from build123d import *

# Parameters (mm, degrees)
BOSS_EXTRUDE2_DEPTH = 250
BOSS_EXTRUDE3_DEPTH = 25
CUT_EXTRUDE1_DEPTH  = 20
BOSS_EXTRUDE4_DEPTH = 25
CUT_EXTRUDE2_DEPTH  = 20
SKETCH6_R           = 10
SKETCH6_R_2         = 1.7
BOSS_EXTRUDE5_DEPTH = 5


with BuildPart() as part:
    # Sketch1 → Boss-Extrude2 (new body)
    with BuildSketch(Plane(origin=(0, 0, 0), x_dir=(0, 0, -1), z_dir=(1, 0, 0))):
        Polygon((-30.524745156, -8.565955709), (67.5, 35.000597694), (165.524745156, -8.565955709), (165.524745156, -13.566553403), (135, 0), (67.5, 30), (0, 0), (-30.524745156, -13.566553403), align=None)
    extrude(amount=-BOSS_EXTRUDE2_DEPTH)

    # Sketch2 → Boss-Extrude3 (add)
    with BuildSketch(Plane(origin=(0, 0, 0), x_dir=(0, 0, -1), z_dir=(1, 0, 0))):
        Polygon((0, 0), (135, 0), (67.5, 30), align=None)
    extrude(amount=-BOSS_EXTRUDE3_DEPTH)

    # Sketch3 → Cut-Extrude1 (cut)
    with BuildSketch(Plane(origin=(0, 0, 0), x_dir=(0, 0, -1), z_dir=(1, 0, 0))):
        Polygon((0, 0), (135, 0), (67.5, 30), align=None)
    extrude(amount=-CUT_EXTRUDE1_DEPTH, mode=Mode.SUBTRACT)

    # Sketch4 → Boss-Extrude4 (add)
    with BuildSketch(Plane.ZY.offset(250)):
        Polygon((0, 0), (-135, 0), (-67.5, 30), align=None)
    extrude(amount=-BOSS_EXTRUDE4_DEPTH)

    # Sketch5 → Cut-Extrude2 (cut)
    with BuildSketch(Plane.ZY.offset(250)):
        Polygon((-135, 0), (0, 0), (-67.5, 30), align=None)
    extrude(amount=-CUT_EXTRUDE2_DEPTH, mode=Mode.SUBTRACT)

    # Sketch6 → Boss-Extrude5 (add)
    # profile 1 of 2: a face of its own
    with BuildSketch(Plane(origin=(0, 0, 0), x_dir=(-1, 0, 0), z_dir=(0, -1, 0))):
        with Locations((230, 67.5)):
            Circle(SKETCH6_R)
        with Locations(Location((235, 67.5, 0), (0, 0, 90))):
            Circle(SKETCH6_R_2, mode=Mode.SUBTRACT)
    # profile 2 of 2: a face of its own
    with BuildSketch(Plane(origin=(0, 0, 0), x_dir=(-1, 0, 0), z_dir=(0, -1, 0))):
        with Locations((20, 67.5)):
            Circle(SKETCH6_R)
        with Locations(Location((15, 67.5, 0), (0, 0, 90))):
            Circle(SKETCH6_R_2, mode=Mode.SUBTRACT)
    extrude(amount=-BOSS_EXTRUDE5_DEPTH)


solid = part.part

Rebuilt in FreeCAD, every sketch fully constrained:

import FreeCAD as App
import Part
import Sketcher

doc = App.newDocument("Part")
body = doc.addObject("PartDesign::Body", "Body")

sketch1 = body.newObject("Sketcher::SketchObject", "Sketch")
sketch1.AttachmentSupport = (doc.getObject("YZ_Plane"), [""])
sketch1.MapMode = "FlatFace"
sketch1.addGeometry([
    Part.LineSegment(App.Vector(35, -68, 0), App.Vector(-9, 31, 0)),
    Part.LineSegment(App.Vector(-9, 31, 0), App.Vector(-14, 31, 0)),
    Part.LineSegment(App.Vector(-14, 31, 0), App.Vector(0, 0, 0)),
    Part.LineSegment(App.Vector(0, 0, 0), App.Vector(30, -68, 0)),
    Part.LineSegment(App.Vector(30, -68, 0), App.Vector(0, -135, 0)),
    Part.LineSegment(App.Vector(0, -135, 0), App.Vector(-14, -166, 0)),
    Part.LineSegment(App.Vector(-14, -166, 0), App.Vector(-9, -166, 0)),
    Part.LineSegment(App.Vector(-9, -166, 0), App.Vector(35, -68, 0)),
], False)
sketch1.addConstraint([
    Sketcher.Constraint("Coincident", 0, 2, 1, 1),
    Sketcher.Constraint("Coincident", 1, 2, 2, 1),
    Sketcher.Constraint("Coincident", 2, 2, 3, 1),
    Sketcher.Constraint("Coincident", 3, 2, 4, 1),
    Sketcher.Constraint("Coincident", 4, 2, 5, 1),
    Sketcher.Constraint("Coincident", 5, 2, 6, 1),
    Sketcher.Constraint("Coincident", 6, 2, 7, 1),
    Sketcher.Constraint("Coincident", 7, 2, 0, 1),
    Sketcher.Constraint("Horizontal", 1),
    Sketcher.Constraint("Horizontal", 6),
    Sketcher.Constraint("Coincident", 2, 2, -1, 1),
    Sketcher.Constraint("PointOnObject", 4, 2, -2),
    Sketcher.Constraint("Parallel", 0, 2),
    Sketcher.Constraint("Parallel", 2, 3),
    Sketcher.Constraint("Parallel", 4, 5),
    Sketcher.Constraint("Parallel", 5, 7),
    Sketcher.Constraint("Horizontal", 3, 2, 7, 2),
    Sketcher.Constraint("Vertical", 1, 2, 5, 2),
    Sketcher.Constraint("Equal", 3, 4),
    Sketcher.Constraint("DistanceX", -1, 1, 3, 2, 30.0),
    Sketcher.Constraint("DistanceY", 4, 2, -1, 1, 135.0),
    Sketcher.Constraint("DistanceX", 1, 2, 1, 1, 5.000598),
    Sketcher.Constraint("DistanceY", 5, 2, 1, 2, 196.04949),
])
pad1 = body.newObject("PartDesign::Pad", "Pad")
pad1.Profile = sketch1
pad1.Length = 250
pad1.Reversed = True

sketch2 = body.newObject("Sketcher::SketchObject", "Sketch001")
sketch2.AttachmentSupport = (doc.getObject("YZ_Plane"), [""])
sketch2.MapMode = "FlatFace"
sketch2.addGeometry([
    Part.LineSegment(App.Vector(0, 0, 0), App.Vector(0, -135, 0)),
    Part.LineSegment(App.Vector(0, -135, 0), App.Vector(30, -68, 0)),
    Part.LineSegment(App.Vector(30, -68, 0), App.Vector(0, 0, 0)),
], False)
sketch2.addConstraint([
    Sketcher.Constraint("Coincident", 0, 2, 1, 1),
    Sketcher.Constraint("Coincident", 1, 2, 2, 1),
    Sketcher.Constraint("Coincident", 2, 2, 0, 1),
    Sketcher.Constraint("Vertical", 0),
    Sketcher.Constraint("Coincident", 2, 2, -1, 1),
    Sketcher.Constraint("Equal", 1, 2),
    Sketcher.Constraint("DistanceY", 0, 2, 0, 1, 135.0),
    Sketcher.Constraint("DistanceX", -1, 1, 1, 2, 30.0),
])
pad2 = body.newObject("PartDesign::Pad", "Pad001")
pad2.Profile = sketch2
pad2.Length = 25
pad2.Reversed = True

sketch3 = body.newObject("Sketcher::SketchObject", "Sketch002")
sketch3.AttachmentSupport = (doc.getObject("YZ_Plane"), [""])
sketch3.MapMode = "FlatFace"
sketch3.addGeometry([
    Part.LineSegment(App.Vector(0, 0, 0), App.Vector(0, -135, 0)),
    Part.LineSegment(App.Vector(0, -135, 0), App.Vector(30, -68, 0)),
    Part.LineSegment(App.Vector(30, -68, 0), App.Vector(0, 0, 0)),
], False)
sketch3.addConstraint([
    Sketcher.Constraint("Coincident", 0, 2, 1, 1),
    Sketcher.Constraint("Coincident", 1, 2, 2, 1),
    Sketcher.Constraint("Coincident", 2, 2, 0, 1),
    Sketcher.Constraint("Vertical", 0),
    Sketcher.Constraint("Coincident", 2, 2, -1, 1),
    Sketcher.Constraint("Equal", 1, 2),
    Sketcher.Constraint("DistanceY", 0, 2, 0, 1, 135.0),
    Sketcher.Constraint("DistanceX", -1, 1, 1, 2, 30.0),
])
pocket1 = body.newObject("PartDesign::Pocket", "Pocket")
pocket1.Profile = sketch3
pocket1.Length = 20

sketch4 = body.newObject("Sketcher::SketchObject", "Sketch003")
sketch4.AttachmentSupport = (doc.getObject("YZ_Plane"), [""])
sketch4.MapMode = "FlatFace"
sketch4.AttachmentOffset = App.Placement(App.Vector(0, 0, -250), App.Rotation())
sketch4.addGeometry([
    Part.LineSegment(App.Vector(0, -135, 0), App.Vector(0, 0, 0)),
    Part.LineSegment(App.Vector(0, 0, 0), App.Vector(30, -68, 0)),
    Part.LineSegment(App.Vector(30, -68, 0), App.Vector(0, -135, 0)),
], False)
sketch4.addConstraint([
    Sketcher.Constraint("Coincident", 0, 2, 1, 1),
    Sketcher.Constraint("Coincident", 1, 2, 2, 1),
    Sketcher.Constraint("Coincident", 2, 2, 0, 1),
    Sketcher.Constraint("Vertical", 0),
    Sketcher.Constraint("Coincident", 0, 2, -1, 1),
    Sketcher.Constraint("Equal", 1, 2),
    Sketcher.Constraint("DistanceY", 0, 1, 0, 2, 135.0),
    Sketcher.Constraint("DistanceX", -1, 1, 1, 2, 30.0),
])
pad3 = body.newObject("PartDesign::Pad", "Pad002")
pad3.Profile = sketch4
pad3.Length = 25

sketch5 = body.newObject("Sketcher::SketchObject", "Sketch004")
sketch5.AttachmentSupport = (doc.getObject("YZ_Plane"), [""])
sketch5.MapMode = "FlatFace"
sketch5.AttachmentOffset = App.Placement(App.Vector(0, 0, -250), App.Rotation())
sketch5.addGeometry([
    Part.LineSegment(App.Vector(0, -135, 0), App.Vector(0, 0, 0)),
    Part.LineSegment(App.Vector(0, 0, 0), App.Vector(30, -68, 0)),
    Part.LineSegment(App.Vector(30, -68, 0), App.Vector(0, -135, 0)),
], False)
sketch5.addConstraint([
    Sketcher.Constraint("Coincident", 0, 2, 1, 1),
    Sketcher.Constraint("Coincident", 1, 2, 2, 1),
    Sketcher.Constraint("Coincident", 2, 2, 0, 1),
    Sketcher.Constraint("Vertical", 0),
    Sketcher.Constraint("Coincident", 0, 2, -1, 1),
    Sketcher.Constraint("Equal", 1, 2),
    Sketcher.Constraint("DistanceY", 0, 1, 0, 2, 135.0),
    Sketcher.Constraint("DistanceX", -1, 1, 1, 2, 30.0),
])
pocket2 = body.newObject("PartDesign::Pocket", "Pocket001")
pocket2.Profile = sketch5
pocket2.Length = 20
pocket2.Reversed = True

sketch6 = body.newObject("Sketcher::SketchObject", "Sketch005")
sketch6.AttachmentSupport = (doc.getObject("XZ_Plane"), [""])
sketch6.MapMode = "FlatFace"
sketch6.addGeometry([
    Part.Circle(App.Vector(-230, -67.5, 0), App.Vector(0, 0, 1), 10),
    Part.Circle(App.Vector(-235, -67.5, 0), App.Vector(0, 0, 1), 1.7),
    Part.Circle(App.Vector(-20, -67.5, 0), App.Vector(0, 0, 1), 10),
    Part.Circle(App.Vector(-15, -67.5, 0), App.Vector(0, 0, 1), 1.7),
], False)
sketch6.addConstraint([
    Sketcher.Constraint("Equal", 0, 2),
    Sketcher.Constraint("Equal", 1, 3),
    Sketcher.Constraint("Horizontal", 0, 3, 1, 3),
    Sketcher.Constraint("Horizontal", 1, 3, 2, 3),
    Sketcher.Constraint("Horizontal", 2, 3, 3, 3),
    Sketcher.Constraint("Diameter", 0, 20.0),
    Sketcher.Constraint("Diameter", 1, 3.4),
    Sketcher.Constraint("DistanceX", 0, 3, -1, 1, 230.0),
    Sketcher.Constraint("DistanceX", 1, 3, -1, 1, 235.0),
    Sketcher.Constraint("DistanceX", 2, 3, -1, 1, 20.0),
    Sketcher.Constraint("DistanceX", 3, 3, -1, 1, 15.0),
    Sketcher.Constraint("DistanceY", 0, 3, -1, 1, 67.5),
])
pad4 = body.newObject("PartDesign::Pad", "Pad003")
pad4.Profile = sketch6
pad4.Length = 5
pad4.Reversed = True

doc.recompute()
